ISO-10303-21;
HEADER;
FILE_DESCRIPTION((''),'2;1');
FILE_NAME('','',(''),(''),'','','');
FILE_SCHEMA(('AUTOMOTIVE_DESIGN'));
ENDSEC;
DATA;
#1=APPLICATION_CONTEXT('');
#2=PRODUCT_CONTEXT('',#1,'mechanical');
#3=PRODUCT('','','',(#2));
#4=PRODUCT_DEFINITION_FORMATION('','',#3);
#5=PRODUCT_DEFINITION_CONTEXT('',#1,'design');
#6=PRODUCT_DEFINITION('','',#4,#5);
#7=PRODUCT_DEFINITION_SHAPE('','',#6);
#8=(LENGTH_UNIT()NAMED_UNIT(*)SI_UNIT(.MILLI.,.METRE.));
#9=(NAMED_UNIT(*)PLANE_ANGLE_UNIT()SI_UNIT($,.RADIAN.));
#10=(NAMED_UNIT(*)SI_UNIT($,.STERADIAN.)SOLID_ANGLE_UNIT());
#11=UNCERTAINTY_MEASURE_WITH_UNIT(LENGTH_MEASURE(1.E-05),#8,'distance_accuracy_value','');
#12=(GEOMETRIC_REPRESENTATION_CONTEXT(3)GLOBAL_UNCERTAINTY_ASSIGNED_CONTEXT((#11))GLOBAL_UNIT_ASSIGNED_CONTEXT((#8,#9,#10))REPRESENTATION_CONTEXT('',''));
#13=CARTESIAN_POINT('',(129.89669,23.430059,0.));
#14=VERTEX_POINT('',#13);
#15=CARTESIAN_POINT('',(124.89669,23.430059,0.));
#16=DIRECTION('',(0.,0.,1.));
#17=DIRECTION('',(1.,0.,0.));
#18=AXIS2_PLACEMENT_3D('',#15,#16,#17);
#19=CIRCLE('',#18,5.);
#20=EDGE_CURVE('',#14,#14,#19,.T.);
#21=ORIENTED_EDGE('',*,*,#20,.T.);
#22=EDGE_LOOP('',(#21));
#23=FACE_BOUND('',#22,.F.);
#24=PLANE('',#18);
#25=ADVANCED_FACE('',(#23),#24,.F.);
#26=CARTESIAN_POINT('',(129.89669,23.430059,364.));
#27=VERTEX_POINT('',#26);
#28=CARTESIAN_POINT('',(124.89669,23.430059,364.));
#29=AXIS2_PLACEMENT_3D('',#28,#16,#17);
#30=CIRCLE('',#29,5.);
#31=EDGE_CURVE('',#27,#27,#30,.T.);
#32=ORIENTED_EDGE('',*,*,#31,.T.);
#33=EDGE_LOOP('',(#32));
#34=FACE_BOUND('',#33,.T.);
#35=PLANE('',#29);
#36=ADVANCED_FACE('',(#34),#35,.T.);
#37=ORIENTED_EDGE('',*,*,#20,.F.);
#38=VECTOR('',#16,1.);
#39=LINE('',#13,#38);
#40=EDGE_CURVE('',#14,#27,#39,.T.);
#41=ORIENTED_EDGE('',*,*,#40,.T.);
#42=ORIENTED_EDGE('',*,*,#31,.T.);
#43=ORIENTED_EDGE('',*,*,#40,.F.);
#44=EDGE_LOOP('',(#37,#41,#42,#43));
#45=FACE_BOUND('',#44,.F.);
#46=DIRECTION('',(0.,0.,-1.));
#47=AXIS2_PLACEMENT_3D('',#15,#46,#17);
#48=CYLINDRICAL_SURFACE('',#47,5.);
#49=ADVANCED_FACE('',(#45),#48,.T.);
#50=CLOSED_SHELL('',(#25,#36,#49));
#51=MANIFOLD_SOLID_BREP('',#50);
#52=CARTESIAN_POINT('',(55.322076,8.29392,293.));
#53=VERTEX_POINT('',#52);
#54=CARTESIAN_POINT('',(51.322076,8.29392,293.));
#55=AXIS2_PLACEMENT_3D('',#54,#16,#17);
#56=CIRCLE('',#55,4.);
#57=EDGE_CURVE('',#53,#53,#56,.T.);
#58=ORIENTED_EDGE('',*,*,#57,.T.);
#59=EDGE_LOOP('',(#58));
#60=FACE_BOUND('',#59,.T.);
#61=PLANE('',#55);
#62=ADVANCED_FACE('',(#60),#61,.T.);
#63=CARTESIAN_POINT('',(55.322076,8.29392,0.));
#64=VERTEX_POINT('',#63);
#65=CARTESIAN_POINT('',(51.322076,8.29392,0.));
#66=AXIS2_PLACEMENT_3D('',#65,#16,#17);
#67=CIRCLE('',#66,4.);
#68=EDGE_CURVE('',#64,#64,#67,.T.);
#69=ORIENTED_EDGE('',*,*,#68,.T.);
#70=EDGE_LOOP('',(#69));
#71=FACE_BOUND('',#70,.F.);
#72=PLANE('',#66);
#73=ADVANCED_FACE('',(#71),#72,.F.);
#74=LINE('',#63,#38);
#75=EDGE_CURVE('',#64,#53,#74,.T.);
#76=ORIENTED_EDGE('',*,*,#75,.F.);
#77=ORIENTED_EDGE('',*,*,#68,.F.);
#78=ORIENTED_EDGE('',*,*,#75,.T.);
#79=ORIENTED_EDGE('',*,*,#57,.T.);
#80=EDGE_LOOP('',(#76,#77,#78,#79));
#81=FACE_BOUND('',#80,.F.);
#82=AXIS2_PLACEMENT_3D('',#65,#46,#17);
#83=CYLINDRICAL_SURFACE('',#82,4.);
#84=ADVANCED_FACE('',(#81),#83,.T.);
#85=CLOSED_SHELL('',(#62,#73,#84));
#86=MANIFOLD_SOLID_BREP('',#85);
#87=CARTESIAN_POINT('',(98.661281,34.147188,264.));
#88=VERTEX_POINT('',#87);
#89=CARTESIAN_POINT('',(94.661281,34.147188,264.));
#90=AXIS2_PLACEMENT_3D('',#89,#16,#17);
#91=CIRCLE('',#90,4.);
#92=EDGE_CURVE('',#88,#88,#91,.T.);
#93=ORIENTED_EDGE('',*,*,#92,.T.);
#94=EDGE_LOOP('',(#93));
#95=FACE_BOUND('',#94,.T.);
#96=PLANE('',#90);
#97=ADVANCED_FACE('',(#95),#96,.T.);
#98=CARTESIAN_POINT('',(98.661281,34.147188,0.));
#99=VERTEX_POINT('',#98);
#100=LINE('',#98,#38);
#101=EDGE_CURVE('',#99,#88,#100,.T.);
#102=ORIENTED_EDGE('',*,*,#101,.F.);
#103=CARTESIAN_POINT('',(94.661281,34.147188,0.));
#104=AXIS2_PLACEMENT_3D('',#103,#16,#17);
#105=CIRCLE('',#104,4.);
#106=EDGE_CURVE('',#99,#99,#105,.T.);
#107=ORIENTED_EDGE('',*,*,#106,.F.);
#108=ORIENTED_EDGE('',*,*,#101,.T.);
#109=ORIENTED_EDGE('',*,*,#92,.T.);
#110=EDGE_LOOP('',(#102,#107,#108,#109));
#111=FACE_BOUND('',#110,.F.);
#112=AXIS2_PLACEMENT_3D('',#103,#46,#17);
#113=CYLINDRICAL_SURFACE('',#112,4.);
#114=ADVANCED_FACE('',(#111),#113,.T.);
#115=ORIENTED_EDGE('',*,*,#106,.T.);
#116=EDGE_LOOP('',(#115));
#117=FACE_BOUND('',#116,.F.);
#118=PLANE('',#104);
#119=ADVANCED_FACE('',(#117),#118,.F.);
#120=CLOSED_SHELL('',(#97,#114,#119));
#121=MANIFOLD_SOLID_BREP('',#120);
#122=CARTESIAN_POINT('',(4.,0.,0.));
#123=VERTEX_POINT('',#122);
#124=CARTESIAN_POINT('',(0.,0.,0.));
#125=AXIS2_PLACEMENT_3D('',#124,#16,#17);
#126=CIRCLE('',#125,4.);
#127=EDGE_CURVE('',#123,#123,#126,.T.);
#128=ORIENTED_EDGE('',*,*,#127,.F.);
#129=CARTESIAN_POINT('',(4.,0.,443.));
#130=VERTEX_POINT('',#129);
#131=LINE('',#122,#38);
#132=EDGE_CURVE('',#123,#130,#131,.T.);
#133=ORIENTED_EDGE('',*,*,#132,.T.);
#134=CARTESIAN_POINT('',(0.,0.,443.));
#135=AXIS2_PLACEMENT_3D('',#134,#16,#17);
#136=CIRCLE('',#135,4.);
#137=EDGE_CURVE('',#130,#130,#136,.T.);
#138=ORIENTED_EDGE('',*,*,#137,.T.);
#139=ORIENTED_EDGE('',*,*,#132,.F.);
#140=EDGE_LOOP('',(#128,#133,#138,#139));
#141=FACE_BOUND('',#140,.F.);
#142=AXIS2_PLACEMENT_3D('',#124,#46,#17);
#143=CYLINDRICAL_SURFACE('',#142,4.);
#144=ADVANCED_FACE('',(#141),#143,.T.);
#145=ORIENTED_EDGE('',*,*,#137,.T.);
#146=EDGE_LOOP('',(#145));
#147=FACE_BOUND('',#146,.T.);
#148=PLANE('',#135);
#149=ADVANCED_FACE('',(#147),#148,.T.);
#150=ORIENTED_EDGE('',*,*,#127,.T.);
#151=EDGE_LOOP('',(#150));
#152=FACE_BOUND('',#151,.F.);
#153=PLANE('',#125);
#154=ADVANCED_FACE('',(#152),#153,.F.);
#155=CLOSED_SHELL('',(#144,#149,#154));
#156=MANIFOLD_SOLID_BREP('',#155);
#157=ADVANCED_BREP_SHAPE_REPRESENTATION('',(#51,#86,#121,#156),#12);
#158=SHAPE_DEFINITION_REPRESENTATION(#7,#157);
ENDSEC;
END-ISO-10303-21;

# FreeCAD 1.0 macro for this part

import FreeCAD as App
import Part
import Sketcher

doc = App.newDocument("Part")
body = doc.addObject("PartDesign::Body", "Body")

# Sketch on XY plane
sketch1 = body.newObject("Sketcher::SketchObject", "Sketch")
sketch1.AttachmentSupport = (doc.getObject("XY_Plane"), [""])
sketch1.MapMode = "FlatFace"
sketch1.addGeometry(Part.Circle(App.Vector(0, 0, 0), App.Vector(0, 0, 1), 4), False)
sketch1.addConstraint([
    Sketcher.Constraint("Coincident", 0, 3, -1, 1),
    Sketcher.Constraint("Diameter", 0, 8.0),
])
pad1 = body.newObject("PartDesign::Pad", "Pad")
pad1.Profile = sketch1
pad1.Length = 443
body2 = doc.addObject("PartDesign::Body", "Body001")

# Sketch on XY plane
sketch2 = body2.newObject("Sketcher::SketchObject", "Sketch001")
sketch2.AttachmentSupport = (doc.getObject("XY_Plane001"), [""])
sketch2.MapMode = "FlatFace"
sketch2.addGeometry(Part.Circle(App.Vector(51.3, 8.3, 0), App.Vector(0, 0, 1), 4), False)
sketch2.addConstraint([
    Sketcher.Constraint("Diameter", 0, 8.0),
    Sketcher.Constraint("DistanceY", -1, 1, 0, 3, 8.29392),
    Sketcher.Constraint("DistanceX", -1, 1, 0, 3, 51.322076),
])
pad2 = body2.newObject("PartDesign::Pad", "Pad001")
pad2.Profile = sketch2
pad2.Length = 293
body3 = doc.addObject("PartDesign::Body", "Body002")

# Sketch on XY plane
sketch3 = body3.newObject("Sketcher::SketchObject", "Sketch002")
sketch3.AttachmentSupport = (doc.getObject("XY_Plane002"), [""])
sketch3.MapMode = "FlatFace"
sketch3.addGeometry(Part.Circle(App.Vector(94.7, 34.1, 0), App.Vector(0, 0, 1), 4), False)
sketch3.addConstraint([
    Sketcher.Constraint("Diameter", 0, 8.0),
    Sketcher.Constraint("DistanceX", -1, 1, 0, 3, 94.661281),
    Sketcher.Constraint("DistanceY", -1, 1, 0, 3, 34.147188),
])
pad3 = body3.newObject("PartDesign::Pad", "Pad002")
pad3.Profile = sketch3
pad3.Length = 264
body4 = doc.addObject("PartDesign::Body", "Body003")

# Sketch on XY plane
sketch4 = body4.newObject("Sketcher::SketchObject", "Sketch003")
sketch4.AttachmentSupport = (doc.getObject("XY_Plane003"), [""])
sketch4.MapMode = "FlatFace"
sketch4.addGeometry(Part.Circle(App.Vector(125, 23, 0), App.Vector(0, 0, 1), 5), False)
sketch4.addConstraint([
    Sketcher.Constraint("Diameter", 0, 10.0),
    Sketcher.Constraint("DistanceX", -1, 1, 0, 3, 124.89669),
    Sketcher.Constraint("DistanceY", -1, 1, 0, 3, 23.430059),
])
pad4 = body4.newObject("PartDesign::Pad", "Pad003")
pad4.Profile = sketch4
pad4.Length = 364

doc.recompute()
